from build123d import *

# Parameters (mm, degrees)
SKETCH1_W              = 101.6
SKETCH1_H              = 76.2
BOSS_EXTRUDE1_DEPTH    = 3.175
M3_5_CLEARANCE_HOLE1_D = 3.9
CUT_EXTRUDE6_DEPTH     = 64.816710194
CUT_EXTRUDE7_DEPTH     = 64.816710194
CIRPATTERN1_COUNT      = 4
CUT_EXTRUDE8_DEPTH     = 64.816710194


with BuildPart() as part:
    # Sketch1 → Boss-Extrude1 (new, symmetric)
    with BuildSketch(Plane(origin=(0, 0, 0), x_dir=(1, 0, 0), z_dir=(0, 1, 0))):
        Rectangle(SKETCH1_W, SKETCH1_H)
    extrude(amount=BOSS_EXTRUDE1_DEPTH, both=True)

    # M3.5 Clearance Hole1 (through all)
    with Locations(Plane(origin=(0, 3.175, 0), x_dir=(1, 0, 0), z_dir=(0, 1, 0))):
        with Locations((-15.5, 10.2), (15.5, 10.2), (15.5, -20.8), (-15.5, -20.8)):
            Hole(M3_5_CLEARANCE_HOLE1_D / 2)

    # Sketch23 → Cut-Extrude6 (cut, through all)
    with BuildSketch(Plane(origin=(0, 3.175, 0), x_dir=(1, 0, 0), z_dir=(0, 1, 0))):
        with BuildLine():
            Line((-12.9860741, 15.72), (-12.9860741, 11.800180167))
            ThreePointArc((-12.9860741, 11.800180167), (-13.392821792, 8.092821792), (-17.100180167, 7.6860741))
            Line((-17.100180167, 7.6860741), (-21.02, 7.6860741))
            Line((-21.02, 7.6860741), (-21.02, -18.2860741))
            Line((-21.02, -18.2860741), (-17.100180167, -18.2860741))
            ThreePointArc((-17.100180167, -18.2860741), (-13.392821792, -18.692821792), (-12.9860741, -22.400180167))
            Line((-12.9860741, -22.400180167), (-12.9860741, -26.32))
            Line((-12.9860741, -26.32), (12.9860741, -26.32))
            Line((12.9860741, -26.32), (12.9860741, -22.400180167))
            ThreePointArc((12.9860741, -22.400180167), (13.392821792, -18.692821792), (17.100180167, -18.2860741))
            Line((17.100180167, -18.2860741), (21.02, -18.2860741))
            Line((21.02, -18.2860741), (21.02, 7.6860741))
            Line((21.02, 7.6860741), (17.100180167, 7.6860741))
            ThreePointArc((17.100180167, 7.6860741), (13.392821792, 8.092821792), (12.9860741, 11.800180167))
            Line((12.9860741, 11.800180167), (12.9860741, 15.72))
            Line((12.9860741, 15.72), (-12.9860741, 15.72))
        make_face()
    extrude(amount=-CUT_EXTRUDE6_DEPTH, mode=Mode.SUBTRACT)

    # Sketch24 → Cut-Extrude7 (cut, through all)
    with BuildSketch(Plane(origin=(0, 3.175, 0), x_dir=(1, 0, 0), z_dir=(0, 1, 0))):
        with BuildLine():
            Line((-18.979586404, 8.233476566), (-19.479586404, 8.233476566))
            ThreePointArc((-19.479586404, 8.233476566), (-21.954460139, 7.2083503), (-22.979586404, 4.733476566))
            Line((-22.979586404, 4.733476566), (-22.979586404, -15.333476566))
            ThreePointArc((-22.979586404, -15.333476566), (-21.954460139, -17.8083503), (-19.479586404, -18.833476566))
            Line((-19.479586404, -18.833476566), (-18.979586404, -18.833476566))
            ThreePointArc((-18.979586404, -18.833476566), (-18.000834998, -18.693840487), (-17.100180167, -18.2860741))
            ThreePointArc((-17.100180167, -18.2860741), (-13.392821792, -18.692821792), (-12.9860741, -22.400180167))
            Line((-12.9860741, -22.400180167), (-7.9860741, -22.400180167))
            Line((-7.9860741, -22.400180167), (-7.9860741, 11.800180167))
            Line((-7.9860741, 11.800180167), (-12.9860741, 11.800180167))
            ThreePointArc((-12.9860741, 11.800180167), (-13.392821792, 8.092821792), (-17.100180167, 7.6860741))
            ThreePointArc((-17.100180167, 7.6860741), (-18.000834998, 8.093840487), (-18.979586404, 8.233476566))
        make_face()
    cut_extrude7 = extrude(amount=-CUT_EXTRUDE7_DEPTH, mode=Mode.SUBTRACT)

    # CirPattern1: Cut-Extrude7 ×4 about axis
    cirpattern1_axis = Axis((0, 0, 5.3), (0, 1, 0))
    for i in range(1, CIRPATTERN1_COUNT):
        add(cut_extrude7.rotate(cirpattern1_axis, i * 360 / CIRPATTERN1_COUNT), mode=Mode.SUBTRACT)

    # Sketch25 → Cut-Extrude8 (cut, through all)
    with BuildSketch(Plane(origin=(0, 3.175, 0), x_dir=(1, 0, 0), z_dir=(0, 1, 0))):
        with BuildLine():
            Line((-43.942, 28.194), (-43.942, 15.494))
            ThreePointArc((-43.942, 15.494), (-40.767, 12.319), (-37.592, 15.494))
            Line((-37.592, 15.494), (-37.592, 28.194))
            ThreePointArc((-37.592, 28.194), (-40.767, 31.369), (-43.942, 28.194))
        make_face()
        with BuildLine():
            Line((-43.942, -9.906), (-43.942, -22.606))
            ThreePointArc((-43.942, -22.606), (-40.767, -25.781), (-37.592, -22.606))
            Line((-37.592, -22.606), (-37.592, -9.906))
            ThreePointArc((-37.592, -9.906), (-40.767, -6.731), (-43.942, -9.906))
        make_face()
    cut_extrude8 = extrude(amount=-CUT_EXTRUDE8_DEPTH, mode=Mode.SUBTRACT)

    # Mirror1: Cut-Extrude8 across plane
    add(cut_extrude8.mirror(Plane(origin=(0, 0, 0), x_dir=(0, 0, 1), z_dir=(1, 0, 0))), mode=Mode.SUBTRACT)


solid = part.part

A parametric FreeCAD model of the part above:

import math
import FreeCAD as App
import Part
import Sketcher
from FreeCAD import Vector
Q = App.Units.Quantity

doc = App.newDocument("Part")
body = doc.addObject("PartDesign::Body", "Body")

# Sketch on XZ plane
sketch1 = body.newObject("Sketcher::SketchObject", "Sketch")
sketch1.AttachmentSupport = (doc.getObject("XZ_Plane"), [""])
sketch1.MapMode = "FlatFace"
sketch1.addGeometry([
    Part.LineSegment(Vector(-51, -38, 0), Vector(-51, 38, 0)),
    Part.LineSegment(Vector(-51, 38, 0), Vector(51, 38, 0)),
    Part.LineSegment(Vector(51, 38, 0), Vector(51, -38, 0)),
    Part.LineSegment(Vector(51, -38, 0), Vector(-51, -38, 0)),
], False)
sketch1.addConstraint([
    Sketcher.Constraint("Coincident", 0, 2, 1, 1),
    Sketcher.Constraint("Coincident", 1, 2, 2, 1),
    Sketcher.Constraint("Coincident", 2, 2, 3, 1),
    Sketcher.Constraint("Coincident", 3, 2, 0, 1),
    Sketcher.Constraint("Vertical", 0),
    Sketcher.Constraint("Horizontal", 1),
    Sketcher.Constraint("Vertical", 2),
    Sketcher.Constraint("Horizontal", 3),
    Sketcher.Constraint("Symmetric", 0, 2, 2, 2, -1, 1),
    Sketcher.Constraint("DistanceX", 1, 1, 1, 2, Q("4 in")),
    Sketcher.Constraint("DistanceY", 0, 1, 0, 2, Q("3 in")),
])
pad1 = body.newObject("PartDesign::Pad", "Pad")
pad1.Profile = sketch1
pad1.Length = Q("0.25 in")
pad1.Midplane = True

# Sketch on XZ plane
sketch2 = body.newObject("Sketcher::SketchObject", "Sketch001")
sketch2.AttachmentSupport = (doc.getObject("XZ_Plane"), [""])
sketch2.MapMode = "FlatFace"
sketch2.AttachmentOffset = App.Placement(Vector(0, 0, -0.125 * 25.4), App.Rotation())
sketch2.addGeometry([
    Part.Circle(Vector(-15.5, -10.2, 0), Vector(0, 0, 1), 1.9),
    Part.Circle(Vector(15.5, -10.2, 0), Vector(0, 0, 1), 1.9),
    Part.Circle(Vector(15.5, 20.8, 0), Vector(0, 0, 1), 1.9),
    Part.Circle(Vector(-15.5, 20.8, 0), Vector(0, 0, 1), 1.9),
], False)
sketch2.addConstraint([
    Sketcher.Constraint("Equal", 0, 1),
    Sketcher.Constraint("Equal", 1, 2),
    Sketcher.Constraint("Equal", 2, 3),
    Sketcher.Constraint("Symmetric", 0, 3, 1, 3, -2),
    Sketcher.Constraint("Symmetric", 2, 3, 3, 3, -2),
    Sketcher.Constraint("Vertical", 1, 3, 2, 3),
    Sketcher.Constraint("Diameter", 0, Q("3.9 mm")),
    Sketcher.Constraint("DistanceX", 0, 3, -1, 1, Q("15.5 mm")),
    Sketcher.Constraint("DistanceY", 0, 3, -1, 1, Q("10.2 mm")),
    Sketcher.Constraint("DistanceY", -1, 1, 2, 3, Q("20.8 mm")),
])
doc.recompute()
hole = body.newObject("PartDesign::Hole", "Hole")
hole.Profile = sketch2
hole.ThreadType = "None"
hole.Diameter = 3.9
hole.DepthType = "ThroughAll"
hole.Reversed = True

# Sketch on XZ plane
sketch3 = body.newObject("Sketcher::SketchObject", "Sketch002")
sketch3.AttachmentSupport = (doc.getObject("XZ_Plane"), [""])
sketch3.MapMode = "FlatFace"
sketch3.AttachmentOffset = App.Placement(Vector(0, 0, -0.125 * 25.4), App.Rotation())
sketch3.addGeometry([
    Part.LineSegment(Vector(-13, -15.7, 0), Vector(-13, -11.8, 0)),  # 0
    Part.ArcOfCircle(Part.Circle(Vector(-15.5, -10.2, 0), Vector(0, 0, 1), 3), math.radians(-32), math.radians(122)),  # 1
    Part.LineSegment(Vector(-17.1, -7.7, 0), Vector(-21, -7.7, 0)),  # 2
    Part.LineSegment(Vector(-21, -7.7, 0), Vector(-21, 18.3, 0)),  # 3
    Part.LineSegment(Vector(-21, 18.3, 0), Vector(-17.1, 18.3, 0)),  # 4
    Part.ArcOfCircle(Part.Circle(Vector(-15.5, 20.8, 0), Vector(0, 0, 1), 3), math.radians(-122), math.radians(32)),  # 5
    Part.LineSegment(Vector(-13, 22.4, 0), Vector(-13, 26.3, 0)),  # 6
    Part.LineSegment(Vector(-13, 26.3, 0), Vector(13, 26.3, 0)),  # 7
    Part.LineSegment(Vector(13, 26.3, 0), Vector(13, 22.4, 0)),  # 8
    Part.ArcOfCircle(Part.Circle(Vector(15.5, 20.8, 0), Vector(0, 0, 1), 3), math.radians(148), math.radians(302)),  # 9
    Part.LineSegment(Vector(17.1, 18.3, 0), Vector(21, 18.3, 0)),  # 10
    Part.LineSegment(Vector(21, 18.3, 0), Vector(21, -7.7, 0)),  # 11
    Part.LineSegment(Vector(21, -7.7, 0), Vector(17.1, -7.7, 0)),  # 12
    Part.ArcOfCircle(Part.Circle(Vector(15.5, -10.2, 0), Vector(0, 0, 1), 3), math.radians(58), math.radians(212)),  # 13
    Part.LineSegment(Vector(13, -11.8, 0), Vector(13, -15.7, 0)),  # 14
    Part.LineSegment(Vector(13, -15.7, 0), Vector(-13, -15.7, 0)),  # 15
], False)
sketch3.addConstraint([
    Sketcher.Constraint("Coincident", 0, 2, 1, 1),
    Sketcher.Constraint("Coincident", 1, 2, 2, 1),
    Sketcher.Constraint("Coincident", 2, 2, 3, 1),
    Sketcher.Constraint("Coincident", 3, 2, 4, 1),
    Sketcher.Constraint("Coincident", 4, 2, 5, 1),
    Sketcher.Constraint("Coincident", 5, 2, 6, 1),
    Sketcher.Constraint("Coincident", 6, 2, 7, 1),
    Sketcher.Constraint("Coincident", 7, 2, 8, 1),
    Sketcher.Constraint("Coincident", 8, 2, 9, 1),
    Sketcher.Constraint("Coincident", 9, 2, 10, 1),
    Sketcher.Constraint("Coincident", 10, 2, 11, 1),
    Sketcher.Constraint("Coincident", 11, 2, 12, 1),
    Sketcher.Constraint("Coincident", 12, 2, 13, 1),
    Sketcher.Constraint("Coincident", 13, 2, 14, 1),
    Sketcher.Constraint("Coincident", 14, 2, 15, 1),
    Sketcher.Constraint("Coincident", 15, 2, 0, 1),
    Sketcher.Constraint("Vertical", 0),
    Sketcher.Constraint("Horizontal", 2),
    Sketcher.Constraint("Vertical", 3),
    Sketcher.Constraint("Horizontal", 4),
    Sketcher.Constraint("Vertical", 6),
    Sketcher.Constraint("Horizontal", 7),
    Sketcher.Constraint("Vertical", 8),
    Sketcher.Constraint("Horizontal", 10),
    Sketcher.Constraint("Vertical", 11),
    Sketcher.Constraint("Horizontal", 12),
    Sketcher.Constraint("Vertical", 14),
    Sketcher.Constraint("Horizontal", 15),
    Sketcher.Constraint("Equal", 1, 5),
    Sketcher.Constraint("Equal", 5, 9),
    Sketcher.Constraint("Equal", 9, 13),
    Sketcher.Constraint("Symmetric", 5, 3, 9, 3, -2),
    Sketcher.Constraint("Symmetric", 1, 3, 13, 3, -2),
    Sketcher.Constraint("Symmetric", 3, 2, 10, 2, -2),
    Sketcher.Constraint("Horizontal", 5, 2, 8, 2),
    Sketcher.Constraint("Horizontal", 2, 2, 11, 2),
    Sketcher.Constraint("Horizontal", 0, 2, 13, 2),
    Sketcher.Constraint("Vertical", 1, 3, 5, 3),
    Sketcher.Constraint("Vertical", 1, 2, 4, 2),
    Sketcher.Constraint("Vertical", 0, 2, 5, 2),
    Sketcher.Constraint("Equal", 12, 0),
    Sketcher.Constraint("Equal", 15, 3),
    Sketcher.Constraint("Equal", 0, 6),
    Sketcher.Constraint("Radius", 1, Q("2.98 mm")),
    Sketcher.Constraint("DistanceX", 2, 2, 2, 1, Q("3.91982 mm")),
    Sketcher.Constraint("DistanceX", 7, 1, 7, 2, Q("25.972148 mm")),
    Sketcher.Constraint("DistanceX", 1, 3, -1, 1, Q("15.5 mm")),
    Sketcher.Constraint("DistanceY", 1, 3, -1, 1, Q("10.2 mm")),
    Sketcher.Constraint("DistanceY", -1, 1, 5, 3, Q("20.8 mm")),
])
pocket1 = body.newObject("PartDesign::Pocket", "Pocket")
pocket1.Profile = sketch3
pocket1.Type = "ThroughAll"
pocket1.Reversed = True

# Sketch on XZ plane
sketch4 = body.newObject("Sketcher::SketchObject", "Sketch003")
sketch4.AttachmentSupport = (doc.getObject("XZ_Plane"), [""])
sketch4.MapMode = "FlatFace"
sketch4.AttachmentOffset = App.Placement(Vector(0, 0, -0.125 * 25.4), App.Rotation())
sketch4.addGeometry([
    Part.LineSegment(Vector(-19, -8.2, 0), Vector(-19.5, -8.2, 0)),  # 0
    Part.ArcOfCircle(Part.Circle(Vector(-19.5, -4.7, 0), Vector(0, 0, 1), 3.5), math.radians(180), math.radians(270)),  # 1
    Part.LineSegment(Vector(-23, -4.7, 0), Vector(-23, 15.3, 0)),  # 2
    Part.ArcOfCircle(Part.Circle(Vector(-19.5, 15.3, 0), Vector(0, 0, 1), 3.5), math.radians(90), math.radians(180)),  # 3
    Part.LineSegment(Vector(-19.5, 18.8, 0), Vector(-19, 18.8, 0)),  # 4
    Part.ArcOfCircle(Part.Circle(Vector(-19, 15.3, 0), Vector(0, 0, 1), 3.5), math.radians(58), math.radians(90)),  # 5
    Part.ArcOfCircle(Part.Circle(Vector(-15.5, 20.8, 0), Vector(0, 0, 1), 3), math.radians(-122), math.radians(32)),  # 6
    Part.LineSegment(Vector(-13, 22.4, 0), Vector(-8, 22.4, 0)),  # 7
    Part.LineSegment(Vector(-8, 22.4, 0), Vector(-8, -11.8, 0)),  # 8
    Part.LineSegment(Vector(-8, -11.8, 0), Vector(-13, -11.8, 0)),  # 9
    Part.ArcOfCircle(Part.Circle(Vector(-15.5, -10.2, 0), Vector(0, 0, 1), 3), math.radians(-32), math.radians(122)),  # 10
    Part.ArcOfCircle(Part.Circle(Vector(-19, -4.7, 0), Vector(0, 0, 1), 3.5), math.radians(-90), math.radians(-58)),  # 11
], False)
sketch4.addConstraint([
    Sketcher.Constraint("Tangent", 0, 2, 1, 2),
    Sketcher.Constraint("Tangent", 1, 1, 2, 1),
    Sketcher.Constraint("Tangent", 2, 2, 3, 2),
    Sketcher.Constraint("Tangent", 3, 1, 4, 1),
    Sketcher.Constraint("Tangent", 4, 2, 5, 2),
    Sketcher.Constraint("Tangent", 5, 1, 6, 1),
    Sketcher.Constraint("Coincident", 6, 2, 7, 1),
    Sketcher.Constraint("Coincident", 7, 2, 8, 1),
    Sketcher.Constraint("Coincident", 8, 2, 9, 1),
    Sketcher.Constraint("Coincident", 9, 2, 10, 1),
    Sketcher.Constraint("Tangent", 10, 2, 11, 2),
    Sketcher.Constraint("Tangent", 11, 1, 0, 1),
    Sketcher.Constraint("Horizontal", 0),
    Sketcher.Constraint("Vertical", 2),
    Sketcher.Constraint("Horizontal", 4),
    Sketcher.Constraint("Horizontal", 7),
    Sketcher.Constraint("Vertical", 8),
    Sketcher.Constraint("Horizontal", 9),
    Sketcher.Constraint("Equal", 1, 3),
    Sketcher.Constraint("Equal", 3, 5),
    Sketcher.Constraint("Equal", 6, 10),
    Sketcher.Constraint("Equal", 5, 11),
    Sketcher.Constraint("Vertical", 6, 3, 10, 3),
    Sketcher.Constraint("Vertical", 5, 3, 11, 3),
    Sketcher.Constraint("Vertical", 6, 2, 9, 2),
    Sketcher.Constraint("Radius", 1, Q("3.5 mm")),
    Sketcher.Constraint("Radius", 6, Q("2.98 mm")),
    Sketcher.Constraint("DistanceX", 0, 2, 0, 1, Q("0.5 mm")),
    Sketcher.Constraint("DistanceX", 7, 1, 7, 2, Q("5 mm")),
    Sketcher.Constraint("DistanceY", 8, 2, 8, 1, Q("34.20036 mm")),
    Sketcher.Constraint("DistanceX", 6, 3, -1, 1, Q("15.5 mm")),
    Sketcher.Constraint("DistanceY", -1, 1, 6, 3, Q("20.8 mm")),
    Sketcher.Constraint("DistanceY", 10, 3, -1, 1, Q("10.2 mm")),
    Sketcher.Constraint("DistanceY", 2, 1, 2, 2, Q("20.066953 mm")),
])
pocket2 = body.newObject("PartDesign::Pocket", "Pocket001")
pocket2.Profile = sketch4
pocket2.Type = "ThroughAll"
pocket2.Reversed = True
doc.recompute()

datumline = body.newObject("PartDesign::Line", "DatumLine")
datumline.Placement = App.Placement(Vector(0, 0, 5.3), App.Rotation(Vector(0, 0, 1), Vector(0, 1, 0)))
polarpattern = body.newObject("PartDesign::PolarPattern", "PolarPattern")
polarpattern.Originals = [pocket2]
polarpattern.Axis = (datumline, [""])
polarpattern.Angle = 360
polarpattern.Occurrences = 4
body.Tip = polarpattern

# Sketch on XZ plane
sketch5 = body.newObject("Sketcher::SketchObject", "Sketch004")
sketch5.AttachmentSupport = (doc.getObject("XZ_Plane"), [""])
sketch5.MapMode = "FlatFace"
sketch5.AttachmentOffset = App.Placement(Vector(0, 0, -0.125 * 25.4), App.Rotation())
sketch5.addGeometry([
    Part.LineSegment(Vector(-43.9, -28.2, 0), Vector(-43.9, -15.5, 0)),  # 0
    Part.ArcOfCircle(Part.Circle(Vector(-40.8, -15.5, 0), Vector(0, 0, 1), 3.2), math.radians(0), math.radians(180)),  # 1
    Part.LineSegment(Vector(-37.6, -15.5, 0), Vector(-37.6, -28.2, 0)),  # 2
    Part.ArcOfCircle(Part.Circle(Vector(-40.8, -28.2, 0), Vector(0, 0, 1), 3.2), math.radians(180), math.radians(360)),  # 3
    Part.LineSegment(Vector(-43.9, 9.9, 0), Vector(-43.9, 22.6, 0)),  # 4
    Part.ArcOfCircle(Part.Circle(Vector(-40.8, 22.6, 0), Vector(0, 0, 1), 3.2), math.radians(0), math.radians(180)),  # 5
    Part.LineSegment(Vector(-37.6, 22.6, 0), Vector(-37.6, 9.9, 0)),  # 6
    Part.ArcOfCircle(Part.Circle(Vector(-40.8, 9.9, 0), Vector(0, 0, 1), 3.2), math.radians(180), math.radians(360)),  # 7
], False)
sketch5.addConstraint([
    Sketcher.Constraint("Tangent", 0, 2, 1, 2),
    Sketcher.Constraint("Tangent", 1, 1, 2, 1),
    Sketcher.Constraint("Tangent", 2, 2, 3, 2),
    Sketcher.Constraint("Tangent", 3, 1, 0, 1),
    Sketcher.Constraint("Tangent", 4, 2, 5, 2),
    Sketcher.Constraint("Tangent", 5, 1, 6, 1),
    Sketcher.Constraint("Tangent", 6, 2, 7, 2),
    Sketcher.Constraint("Tangent", 7, 1, 4, 1),
    Sketcher.Constraint("Vertical", 0),
    Sketcher.Constraint("Vertical", 2),
    Sketcher.Constraint("Vertical", 4),
    Sketcher.Constraint("Vertical", 6),
    Sketcher.Constraint("Equal", 3, 5),
    Sketcher.Constraint("Vertical", 3, 3, 5, 3),
    Sketcher.Constraint("Equal", 2, 4),
    Sketcher.Constraint("DistanceY", 0, 1, 0, 2, Q("0.5 in")),
    Sketcher.Constraint("Radius", 1, Q("0.125 in")),
    Sketcher.Constraint("DistanceY", 3, 3, 5, 3, Q("2 in")),
    Sketcher.Constraint("DistanceY", 1, 3, -1, 1, Q("0.61 in")),
    Sketcher.Constraint("DistanceX", 0, 2, -1, 1, Q("1.73 in")),
])
pocket3 = body.newObject("PartDesign::Pocket", "Pocket002")
pocket3.Profile = sketch5
pocket3.Type = "ThroughAll"
pocket3.Reversed = True
doc.recompute()

mirrored = body.newObject("PartDesign::Mirrored", "Mirrored")
mirrored.Originals = [pocket3]
mirrored.MirrorPlane = (doc.getObject("YZ_Plane"), [""])
body.Tip = mirrored

doc.recompute()
